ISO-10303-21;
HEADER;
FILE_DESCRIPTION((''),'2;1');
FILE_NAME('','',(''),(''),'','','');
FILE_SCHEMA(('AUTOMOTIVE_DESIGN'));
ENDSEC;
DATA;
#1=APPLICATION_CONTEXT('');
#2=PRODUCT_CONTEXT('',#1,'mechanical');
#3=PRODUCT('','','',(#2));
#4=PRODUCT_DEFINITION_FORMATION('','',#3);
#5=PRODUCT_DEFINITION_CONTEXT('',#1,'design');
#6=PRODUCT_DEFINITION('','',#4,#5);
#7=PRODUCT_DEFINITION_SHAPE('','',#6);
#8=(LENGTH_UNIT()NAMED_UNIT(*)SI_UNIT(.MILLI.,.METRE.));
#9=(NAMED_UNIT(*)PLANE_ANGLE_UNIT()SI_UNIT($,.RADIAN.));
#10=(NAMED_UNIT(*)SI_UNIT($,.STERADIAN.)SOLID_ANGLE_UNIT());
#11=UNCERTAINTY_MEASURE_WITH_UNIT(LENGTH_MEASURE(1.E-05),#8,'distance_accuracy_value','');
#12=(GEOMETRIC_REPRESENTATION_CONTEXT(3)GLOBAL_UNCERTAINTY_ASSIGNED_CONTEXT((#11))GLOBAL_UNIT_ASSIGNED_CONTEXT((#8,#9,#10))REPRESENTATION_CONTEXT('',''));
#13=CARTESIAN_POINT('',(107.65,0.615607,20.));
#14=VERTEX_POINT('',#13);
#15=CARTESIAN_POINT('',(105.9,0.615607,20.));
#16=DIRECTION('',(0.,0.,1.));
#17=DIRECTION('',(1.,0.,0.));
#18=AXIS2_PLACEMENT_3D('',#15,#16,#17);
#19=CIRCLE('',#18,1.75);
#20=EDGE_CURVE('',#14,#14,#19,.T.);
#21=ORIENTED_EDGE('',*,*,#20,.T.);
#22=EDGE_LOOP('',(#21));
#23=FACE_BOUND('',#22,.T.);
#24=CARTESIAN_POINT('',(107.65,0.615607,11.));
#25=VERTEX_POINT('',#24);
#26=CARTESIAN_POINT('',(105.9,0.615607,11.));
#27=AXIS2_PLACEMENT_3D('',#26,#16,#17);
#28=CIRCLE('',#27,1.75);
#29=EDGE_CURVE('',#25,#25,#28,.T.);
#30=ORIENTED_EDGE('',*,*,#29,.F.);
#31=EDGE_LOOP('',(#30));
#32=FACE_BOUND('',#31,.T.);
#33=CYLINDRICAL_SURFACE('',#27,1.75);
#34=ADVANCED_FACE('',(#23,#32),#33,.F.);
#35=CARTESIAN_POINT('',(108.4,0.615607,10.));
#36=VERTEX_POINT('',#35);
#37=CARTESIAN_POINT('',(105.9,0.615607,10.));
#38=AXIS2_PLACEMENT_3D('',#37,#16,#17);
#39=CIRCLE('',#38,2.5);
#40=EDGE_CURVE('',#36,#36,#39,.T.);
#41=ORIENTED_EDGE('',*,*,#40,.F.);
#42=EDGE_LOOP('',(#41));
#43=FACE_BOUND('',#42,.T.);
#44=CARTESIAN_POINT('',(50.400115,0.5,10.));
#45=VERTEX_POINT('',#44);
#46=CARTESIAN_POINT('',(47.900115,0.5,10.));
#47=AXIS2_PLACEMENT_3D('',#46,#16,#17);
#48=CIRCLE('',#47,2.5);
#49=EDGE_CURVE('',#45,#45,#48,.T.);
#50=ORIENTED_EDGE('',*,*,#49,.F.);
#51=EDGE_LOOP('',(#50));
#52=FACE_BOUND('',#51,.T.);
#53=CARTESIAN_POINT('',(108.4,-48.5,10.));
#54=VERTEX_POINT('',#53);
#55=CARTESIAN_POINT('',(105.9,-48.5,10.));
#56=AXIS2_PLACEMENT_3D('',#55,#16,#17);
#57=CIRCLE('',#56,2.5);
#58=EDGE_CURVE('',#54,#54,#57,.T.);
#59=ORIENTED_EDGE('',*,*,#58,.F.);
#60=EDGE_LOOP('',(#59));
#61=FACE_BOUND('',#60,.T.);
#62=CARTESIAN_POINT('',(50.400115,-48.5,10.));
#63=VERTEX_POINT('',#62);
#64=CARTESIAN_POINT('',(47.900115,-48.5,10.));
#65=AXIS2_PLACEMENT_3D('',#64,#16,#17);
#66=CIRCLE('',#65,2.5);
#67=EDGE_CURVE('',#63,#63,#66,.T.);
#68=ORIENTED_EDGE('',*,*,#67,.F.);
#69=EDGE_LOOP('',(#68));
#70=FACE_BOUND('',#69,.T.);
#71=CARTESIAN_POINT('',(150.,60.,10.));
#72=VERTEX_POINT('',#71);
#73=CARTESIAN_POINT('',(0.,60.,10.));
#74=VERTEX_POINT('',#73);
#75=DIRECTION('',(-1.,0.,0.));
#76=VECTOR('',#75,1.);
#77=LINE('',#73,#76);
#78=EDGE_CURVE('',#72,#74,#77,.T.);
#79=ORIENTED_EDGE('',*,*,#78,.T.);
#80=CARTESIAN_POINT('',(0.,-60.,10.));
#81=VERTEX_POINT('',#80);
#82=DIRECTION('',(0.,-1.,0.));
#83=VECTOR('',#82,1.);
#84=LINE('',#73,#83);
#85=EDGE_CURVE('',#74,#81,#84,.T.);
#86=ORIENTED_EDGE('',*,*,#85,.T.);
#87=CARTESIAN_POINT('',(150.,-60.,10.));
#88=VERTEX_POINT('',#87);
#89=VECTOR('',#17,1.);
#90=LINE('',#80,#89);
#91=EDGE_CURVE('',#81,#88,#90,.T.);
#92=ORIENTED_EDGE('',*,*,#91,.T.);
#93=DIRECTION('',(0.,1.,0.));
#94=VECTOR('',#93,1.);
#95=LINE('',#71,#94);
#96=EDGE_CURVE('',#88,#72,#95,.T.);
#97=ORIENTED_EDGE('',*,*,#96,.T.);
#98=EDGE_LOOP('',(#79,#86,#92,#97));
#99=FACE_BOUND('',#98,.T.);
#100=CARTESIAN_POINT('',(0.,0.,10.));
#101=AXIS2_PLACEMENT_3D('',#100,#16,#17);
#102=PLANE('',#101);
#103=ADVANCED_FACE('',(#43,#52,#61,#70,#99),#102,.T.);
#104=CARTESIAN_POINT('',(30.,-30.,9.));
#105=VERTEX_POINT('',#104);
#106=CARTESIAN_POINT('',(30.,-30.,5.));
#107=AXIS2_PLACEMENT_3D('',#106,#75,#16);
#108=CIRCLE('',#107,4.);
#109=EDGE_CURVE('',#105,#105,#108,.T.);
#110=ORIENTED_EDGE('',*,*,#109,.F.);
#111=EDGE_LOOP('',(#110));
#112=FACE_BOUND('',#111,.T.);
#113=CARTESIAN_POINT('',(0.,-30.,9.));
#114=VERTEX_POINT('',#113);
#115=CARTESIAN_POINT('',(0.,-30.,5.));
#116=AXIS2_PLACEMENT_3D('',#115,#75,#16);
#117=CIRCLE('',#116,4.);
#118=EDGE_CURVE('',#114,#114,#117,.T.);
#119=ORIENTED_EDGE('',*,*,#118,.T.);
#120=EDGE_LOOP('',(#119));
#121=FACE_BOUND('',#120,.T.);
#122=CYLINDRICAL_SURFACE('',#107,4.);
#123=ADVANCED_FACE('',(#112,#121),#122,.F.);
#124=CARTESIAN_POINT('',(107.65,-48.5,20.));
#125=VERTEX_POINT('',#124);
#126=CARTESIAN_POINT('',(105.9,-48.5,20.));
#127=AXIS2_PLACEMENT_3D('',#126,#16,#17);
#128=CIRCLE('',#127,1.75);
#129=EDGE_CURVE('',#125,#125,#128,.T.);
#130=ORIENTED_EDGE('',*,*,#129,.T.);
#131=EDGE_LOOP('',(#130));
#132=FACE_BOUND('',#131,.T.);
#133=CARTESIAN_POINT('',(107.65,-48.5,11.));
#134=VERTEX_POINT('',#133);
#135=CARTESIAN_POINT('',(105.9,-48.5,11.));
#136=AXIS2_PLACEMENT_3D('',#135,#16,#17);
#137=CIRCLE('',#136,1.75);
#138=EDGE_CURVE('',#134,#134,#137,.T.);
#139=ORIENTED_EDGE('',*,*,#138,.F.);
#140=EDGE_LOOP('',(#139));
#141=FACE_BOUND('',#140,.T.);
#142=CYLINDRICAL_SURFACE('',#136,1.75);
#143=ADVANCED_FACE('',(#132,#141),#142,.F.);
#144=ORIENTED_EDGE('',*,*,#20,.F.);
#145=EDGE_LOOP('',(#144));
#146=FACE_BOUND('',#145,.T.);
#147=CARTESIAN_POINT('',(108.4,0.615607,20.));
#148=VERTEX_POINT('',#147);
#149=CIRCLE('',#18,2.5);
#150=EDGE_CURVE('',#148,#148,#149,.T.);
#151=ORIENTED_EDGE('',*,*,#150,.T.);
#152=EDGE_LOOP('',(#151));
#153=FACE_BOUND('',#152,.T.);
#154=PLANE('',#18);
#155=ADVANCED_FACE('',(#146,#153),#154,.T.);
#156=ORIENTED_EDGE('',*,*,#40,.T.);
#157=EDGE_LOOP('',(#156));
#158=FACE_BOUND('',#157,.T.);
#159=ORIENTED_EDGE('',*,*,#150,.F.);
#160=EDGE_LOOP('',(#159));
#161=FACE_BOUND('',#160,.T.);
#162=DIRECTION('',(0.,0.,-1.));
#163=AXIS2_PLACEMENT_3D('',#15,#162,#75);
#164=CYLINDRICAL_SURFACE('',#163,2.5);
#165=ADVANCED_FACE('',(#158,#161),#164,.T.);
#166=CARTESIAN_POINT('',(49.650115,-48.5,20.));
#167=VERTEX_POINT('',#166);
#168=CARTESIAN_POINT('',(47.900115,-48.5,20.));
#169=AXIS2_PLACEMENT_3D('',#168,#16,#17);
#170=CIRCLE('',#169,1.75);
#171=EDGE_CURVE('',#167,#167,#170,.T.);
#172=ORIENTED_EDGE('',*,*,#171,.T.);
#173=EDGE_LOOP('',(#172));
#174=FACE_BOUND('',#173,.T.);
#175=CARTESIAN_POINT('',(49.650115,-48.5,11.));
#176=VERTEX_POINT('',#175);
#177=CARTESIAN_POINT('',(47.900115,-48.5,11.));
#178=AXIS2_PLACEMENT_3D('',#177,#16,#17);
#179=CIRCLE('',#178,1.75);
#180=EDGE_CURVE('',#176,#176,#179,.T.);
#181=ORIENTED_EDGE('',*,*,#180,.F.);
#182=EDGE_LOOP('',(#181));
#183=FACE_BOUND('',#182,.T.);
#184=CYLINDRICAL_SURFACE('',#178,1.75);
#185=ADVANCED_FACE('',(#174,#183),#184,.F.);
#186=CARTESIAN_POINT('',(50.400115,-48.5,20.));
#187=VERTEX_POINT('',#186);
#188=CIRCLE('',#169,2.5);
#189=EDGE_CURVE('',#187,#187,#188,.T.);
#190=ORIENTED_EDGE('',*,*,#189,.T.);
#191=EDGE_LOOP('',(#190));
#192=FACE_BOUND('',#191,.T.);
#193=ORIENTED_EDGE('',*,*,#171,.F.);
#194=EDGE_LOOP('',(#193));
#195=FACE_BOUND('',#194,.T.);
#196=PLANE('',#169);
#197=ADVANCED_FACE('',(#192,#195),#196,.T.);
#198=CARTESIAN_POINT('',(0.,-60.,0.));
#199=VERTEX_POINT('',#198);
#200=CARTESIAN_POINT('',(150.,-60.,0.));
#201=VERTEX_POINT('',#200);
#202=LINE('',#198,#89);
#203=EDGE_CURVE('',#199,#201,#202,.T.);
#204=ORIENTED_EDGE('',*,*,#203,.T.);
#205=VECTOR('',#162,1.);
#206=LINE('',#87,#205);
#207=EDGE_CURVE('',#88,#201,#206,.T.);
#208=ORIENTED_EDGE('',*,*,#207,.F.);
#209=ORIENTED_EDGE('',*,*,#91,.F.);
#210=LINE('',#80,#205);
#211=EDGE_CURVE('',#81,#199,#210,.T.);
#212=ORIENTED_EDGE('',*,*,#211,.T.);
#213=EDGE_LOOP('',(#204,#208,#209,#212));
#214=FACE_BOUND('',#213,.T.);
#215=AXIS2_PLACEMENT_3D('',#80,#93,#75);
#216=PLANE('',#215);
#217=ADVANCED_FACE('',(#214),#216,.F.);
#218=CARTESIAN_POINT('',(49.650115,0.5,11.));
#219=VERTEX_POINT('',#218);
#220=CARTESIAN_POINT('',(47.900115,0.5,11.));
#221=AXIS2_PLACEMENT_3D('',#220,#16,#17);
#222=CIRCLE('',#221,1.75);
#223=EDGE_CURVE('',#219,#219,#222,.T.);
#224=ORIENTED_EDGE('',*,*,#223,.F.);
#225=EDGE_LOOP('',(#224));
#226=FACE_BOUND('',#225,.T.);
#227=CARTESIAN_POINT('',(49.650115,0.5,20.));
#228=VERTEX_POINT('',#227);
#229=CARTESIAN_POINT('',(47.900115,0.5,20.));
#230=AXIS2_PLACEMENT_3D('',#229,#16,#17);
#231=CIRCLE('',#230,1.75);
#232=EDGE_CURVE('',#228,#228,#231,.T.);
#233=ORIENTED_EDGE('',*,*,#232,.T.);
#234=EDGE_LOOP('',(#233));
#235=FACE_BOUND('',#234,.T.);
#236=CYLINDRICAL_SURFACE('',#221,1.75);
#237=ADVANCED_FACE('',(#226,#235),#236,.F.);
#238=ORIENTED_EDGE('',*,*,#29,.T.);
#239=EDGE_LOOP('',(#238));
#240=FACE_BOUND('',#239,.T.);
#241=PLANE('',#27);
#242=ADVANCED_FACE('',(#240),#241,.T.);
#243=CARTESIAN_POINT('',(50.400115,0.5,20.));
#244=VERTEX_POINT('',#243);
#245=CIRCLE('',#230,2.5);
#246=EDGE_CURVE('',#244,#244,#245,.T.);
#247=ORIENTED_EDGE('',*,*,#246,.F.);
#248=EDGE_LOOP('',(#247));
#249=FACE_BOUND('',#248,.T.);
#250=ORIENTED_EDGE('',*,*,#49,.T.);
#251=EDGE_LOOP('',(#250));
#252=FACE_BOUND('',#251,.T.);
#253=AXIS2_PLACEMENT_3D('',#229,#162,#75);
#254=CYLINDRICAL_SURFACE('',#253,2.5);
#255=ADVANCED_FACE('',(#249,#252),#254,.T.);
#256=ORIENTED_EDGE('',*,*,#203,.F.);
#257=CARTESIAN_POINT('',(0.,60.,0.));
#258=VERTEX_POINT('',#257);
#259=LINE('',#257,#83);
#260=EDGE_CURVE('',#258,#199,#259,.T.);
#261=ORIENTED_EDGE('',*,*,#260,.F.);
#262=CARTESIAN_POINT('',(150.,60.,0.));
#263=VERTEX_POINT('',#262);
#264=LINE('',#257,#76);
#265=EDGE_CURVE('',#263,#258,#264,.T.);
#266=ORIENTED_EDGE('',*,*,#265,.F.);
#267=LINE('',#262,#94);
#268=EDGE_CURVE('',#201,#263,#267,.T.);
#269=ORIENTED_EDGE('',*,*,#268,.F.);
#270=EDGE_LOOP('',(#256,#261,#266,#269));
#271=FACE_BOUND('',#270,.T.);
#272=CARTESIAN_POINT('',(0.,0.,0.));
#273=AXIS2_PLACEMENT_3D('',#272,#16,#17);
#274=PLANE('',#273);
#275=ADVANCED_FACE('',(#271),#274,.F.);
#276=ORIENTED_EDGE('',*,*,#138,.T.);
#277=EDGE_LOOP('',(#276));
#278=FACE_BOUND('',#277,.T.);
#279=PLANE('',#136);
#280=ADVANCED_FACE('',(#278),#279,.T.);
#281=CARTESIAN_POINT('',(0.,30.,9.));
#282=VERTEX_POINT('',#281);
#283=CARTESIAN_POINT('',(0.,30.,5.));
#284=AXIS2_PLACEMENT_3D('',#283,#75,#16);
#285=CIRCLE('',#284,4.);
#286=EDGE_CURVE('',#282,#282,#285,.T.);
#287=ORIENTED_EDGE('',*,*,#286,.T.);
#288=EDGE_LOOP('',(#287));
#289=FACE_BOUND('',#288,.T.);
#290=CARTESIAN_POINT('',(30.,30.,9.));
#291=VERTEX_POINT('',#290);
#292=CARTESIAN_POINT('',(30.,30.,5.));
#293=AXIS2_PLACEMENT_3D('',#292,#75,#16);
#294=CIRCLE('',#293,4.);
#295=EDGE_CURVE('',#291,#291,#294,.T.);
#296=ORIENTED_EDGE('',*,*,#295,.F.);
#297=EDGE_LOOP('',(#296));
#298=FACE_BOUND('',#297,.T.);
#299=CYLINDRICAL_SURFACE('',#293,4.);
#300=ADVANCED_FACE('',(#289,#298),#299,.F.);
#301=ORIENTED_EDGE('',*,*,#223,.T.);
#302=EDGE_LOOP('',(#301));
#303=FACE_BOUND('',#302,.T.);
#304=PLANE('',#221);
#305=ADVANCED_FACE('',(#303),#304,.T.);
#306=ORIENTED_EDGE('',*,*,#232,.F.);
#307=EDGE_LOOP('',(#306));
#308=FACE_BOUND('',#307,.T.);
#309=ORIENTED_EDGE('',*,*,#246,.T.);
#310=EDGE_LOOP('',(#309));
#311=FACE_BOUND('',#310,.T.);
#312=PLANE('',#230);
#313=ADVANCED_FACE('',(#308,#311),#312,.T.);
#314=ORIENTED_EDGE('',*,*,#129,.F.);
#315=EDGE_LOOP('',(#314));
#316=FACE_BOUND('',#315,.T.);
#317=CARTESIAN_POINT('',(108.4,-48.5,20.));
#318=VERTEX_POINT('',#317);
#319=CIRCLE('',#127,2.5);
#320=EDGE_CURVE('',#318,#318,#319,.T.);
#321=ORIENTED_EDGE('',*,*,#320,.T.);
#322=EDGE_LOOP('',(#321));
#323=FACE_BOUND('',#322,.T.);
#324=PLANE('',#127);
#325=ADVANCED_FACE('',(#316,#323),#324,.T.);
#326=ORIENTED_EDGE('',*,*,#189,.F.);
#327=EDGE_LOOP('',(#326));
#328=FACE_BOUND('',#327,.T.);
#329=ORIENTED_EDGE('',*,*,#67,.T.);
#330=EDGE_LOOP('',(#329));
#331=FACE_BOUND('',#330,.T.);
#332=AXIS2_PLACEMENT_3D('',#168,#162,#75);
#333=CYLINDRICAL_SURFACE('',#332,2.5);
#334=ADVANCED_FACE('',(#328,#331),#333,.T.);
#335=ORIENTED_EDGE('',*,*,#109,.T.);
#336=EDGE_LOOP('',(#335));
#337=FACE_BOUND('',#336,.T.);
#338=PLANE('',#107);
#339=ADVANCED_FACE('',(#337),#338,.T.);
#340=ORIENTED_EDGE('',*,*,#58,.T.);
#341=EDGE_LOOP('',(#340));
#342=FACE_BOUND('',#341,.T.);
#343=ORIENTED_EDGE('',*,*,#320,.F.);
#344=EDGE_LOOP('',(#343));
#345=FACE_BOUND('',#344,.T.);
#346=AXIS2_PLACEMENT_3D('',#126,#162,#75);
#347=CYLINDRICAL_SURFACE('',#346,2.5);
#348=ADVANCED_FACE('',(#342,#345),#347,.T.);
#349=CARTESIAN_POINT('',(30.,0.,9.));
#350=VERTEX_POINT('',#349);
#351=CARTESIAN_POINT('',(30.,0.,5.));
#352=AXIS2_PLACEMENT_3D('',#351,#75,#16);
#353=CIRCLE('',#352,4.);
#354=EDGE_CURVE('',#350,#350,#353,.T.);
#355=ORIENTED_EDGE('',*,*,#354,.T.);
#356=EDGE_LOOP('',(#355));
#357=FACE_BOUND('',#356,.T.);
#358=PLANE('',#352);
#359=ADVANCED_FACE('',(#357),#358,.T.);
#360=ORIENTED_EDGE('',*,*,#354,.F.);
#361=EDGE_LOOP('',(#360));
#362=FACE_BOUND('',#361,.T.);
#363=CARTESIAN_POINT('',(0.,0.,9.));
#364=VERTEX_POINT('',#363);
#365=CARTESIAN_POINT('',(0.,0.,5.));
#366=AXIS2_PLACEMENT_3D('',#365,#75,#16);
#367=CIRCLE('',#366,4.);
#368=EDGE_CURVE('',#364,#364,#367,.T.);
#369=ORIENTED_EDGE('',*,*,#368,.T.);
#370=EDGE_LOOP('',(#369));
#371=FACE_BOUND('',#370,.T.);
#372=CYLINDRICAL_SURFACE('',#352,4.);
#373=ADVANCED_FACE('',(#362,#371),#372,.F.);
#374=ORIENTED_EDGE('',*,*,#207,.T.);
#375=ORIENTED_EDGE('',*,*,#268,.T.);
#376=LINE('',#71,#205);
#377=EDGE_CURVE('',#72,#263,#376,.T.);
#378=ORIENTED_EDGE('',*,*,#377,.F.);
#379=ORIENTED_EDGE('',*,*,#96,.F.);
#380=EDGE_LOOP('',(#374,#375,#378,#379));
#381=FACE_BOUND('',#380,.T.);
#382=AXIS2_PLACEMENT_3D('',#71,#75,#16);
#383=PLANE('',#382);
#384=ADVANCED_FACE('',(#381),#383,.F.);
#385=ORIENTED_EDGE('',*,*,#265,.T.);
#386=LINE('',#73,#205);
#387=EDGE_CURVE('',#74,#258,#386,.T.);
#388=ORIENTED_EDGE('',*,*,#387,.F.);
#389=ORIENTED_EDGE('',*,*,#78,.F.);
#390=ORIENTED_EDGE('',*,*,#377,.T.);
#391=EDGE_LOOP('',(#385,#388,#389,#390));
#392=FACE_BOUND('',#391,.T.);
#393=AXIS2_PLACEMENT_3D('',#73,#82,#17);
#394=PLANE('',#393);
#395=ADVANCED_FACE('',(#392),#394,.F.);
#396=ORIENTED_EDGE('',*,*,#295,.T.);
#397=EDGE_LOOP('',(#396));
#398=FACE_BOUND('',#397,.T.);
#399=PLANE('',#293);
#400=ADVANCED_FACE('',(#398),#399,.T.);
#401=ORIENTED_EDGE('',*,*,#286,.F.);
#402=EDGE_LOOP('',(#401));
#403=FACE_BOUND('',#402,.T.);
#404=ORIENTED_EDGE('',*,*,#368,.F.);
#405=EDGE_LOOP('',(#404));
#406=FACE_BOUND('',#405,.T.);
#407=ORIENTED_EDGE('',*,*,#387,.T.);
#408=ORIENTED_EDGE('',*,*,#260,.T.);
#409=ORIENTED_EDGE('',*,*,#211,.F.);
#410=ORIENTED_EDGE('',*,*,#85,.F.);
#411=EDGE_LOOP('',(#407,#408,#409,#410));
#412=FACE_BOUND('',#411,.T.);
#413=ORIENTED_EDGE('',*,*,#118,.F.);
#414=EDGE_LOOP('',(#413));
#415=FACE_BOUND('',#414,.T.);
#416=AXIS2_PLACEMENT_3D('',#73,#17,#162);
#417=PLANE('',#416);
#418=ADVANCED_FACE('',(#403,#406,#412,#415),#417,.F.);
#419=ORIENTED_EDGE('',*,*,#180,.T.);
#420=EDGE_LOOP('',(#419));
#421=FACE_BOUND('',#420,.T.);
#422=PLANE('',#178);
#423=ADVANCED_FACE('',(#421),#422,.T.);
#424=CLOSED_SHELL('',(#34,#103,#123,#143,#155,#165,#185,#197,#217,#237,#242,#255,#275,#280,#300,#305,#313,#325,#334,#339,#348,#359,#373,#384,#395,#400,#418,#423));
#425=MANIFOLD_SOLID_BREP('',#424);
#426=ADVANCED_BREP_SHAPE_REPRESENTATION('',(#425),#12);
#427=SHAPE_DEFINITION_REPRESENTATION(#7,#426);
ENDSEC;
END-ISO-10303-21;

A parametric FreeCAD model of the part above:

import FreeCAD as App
import Part
import Sketcher
from FreeCAD import Vector

doc = App.newDocument("Part")
body = doc.addObject("PartDesign::Body", "Body")

sketch1 = body.newObject("Sketcher::SketchObject", "Sketch")
sketch1.AttachmentSupport = (doc.getObject("XY_Plane"), [""])
sketch1.MapMode = "FlatFace"
sketch1.addGeometry(Part.LineSegment(Vector(0, 60, 0), Vector(0, -60, 0)), False)
sketch1.addGeometry(Part.LineSegment(Vector(0, -60, 0), Vector(150, -60, 0)), False)
sketch1.addGeometry(Part.LineSegment(Vector(150, -60, 0), Vector(150, 60, 0)), False)
sketch1.addGeometry(Part.LineSegment(Vector(150, 60, 0), Vector(0, 60, 0)), False)
sketch1.addConstraint(Sketcher.Constraint("Coincident", 0, 2, 1, 1))
sketch1.addConstraint(Sketcher.Constraint("Coincident", 1, 2, 2, 1))
sketch1.addConstraint(Sketcher.Constraint("Coincident", 2, 2, 3, 1))
sketch1.addConstraint(Sketcher.Constraint("Coincident", 3, 2, 0, 1))
sketch1.addConstraint(Sketcher.Constraint("Vertical", 0))
sketch1.addConstraint(Sketcher.Constraint("Horizontal", 1))
sketch1.addConstraint(Sketcher.Constraint("Vertical", 2))
sketch1.addConstraint(Sketcher.Constraint("Horizontal", 3))
sketch1.addConstraint(Sketcher.Constraint("Symmetric", 0, 2, 3, 2, -1, 1))
sketch1.addConstraint(Sketcher.Constraint("DistanceX", 1, 1, 1, 2, 150.0))
sketch1.addConstraint(Sketcher.Constraint("DistanceY", 0, 2, 0, 1, 120.0))
pad1 = body.newObject("PartDesign::Pad", "Pad")
pad1.Profile = sketch1
pad1.Length = 10

sketch2 = body.newObject("Sketcher::SketchObject", "Sketch001")
sketch2.AttachmentSupport = (doc.getObject("YZ_Plane"), [""])
sketch2.MapMode = "FlatFace"
sketch2.addGeometry(Part.Circle(Vector(0, 5, 0), Vector(0, 0, 1), 4), False)
sketch2.addGeometry(Part.Circle(Vector(30, 5, 0), Vector(0, 0, 1), 4), False)
sketch2.addGeometry(Part.Circle(Vector(-30, 5, 0), Vector(0, 0, 1), 4), False)
sketch2.addConstraint(Sketcher.Constraint("Equal", 0, 1))
sketch2.addConstraint(Sketcher.Constraint("Equal", 1, 2))
sketch2.addConstraint(Sketcher.Constraint("Symmetric", 1, 3, 2, 3, -2))
sketch2.addConstraint(Sketcher.Constraint("PointOnObject", 0, 3, -2))
sketch2.addConstraint(Sketcher.Constraint("Horizontal", 0, 3, 1, 3))
sketch2.addConstraint(Sketcher.Constraint("Diameter", 0, 8.0))
sketch2.addConstraint(Sketcher.Constraint("DistanceY", -1, 1, 0, 3, 5.0))
sketch2.addConstraint(Sketcher.Constraint("DistanceX", -1, 1, 1, 3, 30.0))
pocket1 = body.newObject("PartDesign::Pocket", "Pocket")
pocket1.Profile = sketch2
pocket1.Length = 30
pocket1.Reversed = True

sketch3 = body.newObject("Sketcher::SketchObject", "Sketch002")
sketch3.AttachmentSupport = (doc.getObject("XY_Plane"), [""])
sketch3.MapMode = "FlatFace"
sketch3.AttachmentOffset = App.Placement(Vector(0, 0, 10), App.Rotation())
sketch3.addGeometry(Part.Circle(Vector(47.900115, 0.5, 0), Vector(0, 0, 1), 2.5), False)
sketch3.addGeometry(Part.Circle(Vector(105.9, 0.615607, 0), Vector(0, 0, 1), 2.5), False)
sketch3.addGeometry(Part.Circle(Vector(105.9, -48.5, 0), Vector(0, 0, 1), 2.5), False)
sketch3.addGeometry(Part.Circle(Vector(47.900115, -48.5, 0), Vector(0, 0, 1), 2.5), False)
sketch3.addConstraint(Sketcher.Constraint("Equal", 0, 1))
sketch3.addConstraint(Sketcher.Constraint("Equal", 1, 2))
sketch3.addConstraint(Sketcher.Constraint("Equal", 2, 3))
sketch3.addConstraint(Sketcher.Constraint("Horizontal", 2, 3, 3, 3))
sketch3.addConstraint(Sketcher.Constraint("Vertical", 1, 3, 2, 3))
sketch3.addConstraint(Sketcher.Constraint("Vertical", 0, 3, 3, 3))
sketch3.addConstraint(Sketcher.Constraint("Diameter", 0, 5.0))
sketch3.addConstraint(Sketcher.Constraint("DistanceY", 2, 3, 0, 3, 49.0))
sketch3.addConstraint(Sketcher.Constraint("DistanceY", -1, 1, 0, 3, 0.5))
sketch3.addConstraint(Sketcher.Constraint("DistanceX", -1, 1, 1, 3, 105.9))
sketch3.addConstraint(Sketcher.Constraint("DistanceX", -1, 1, 0, 3, 47.900115))
sketch3.addConstraint(Sketcher.Constraint("DistanceY", -1, 1, 1, 3, 0.615607))
pad2 = body.newObject("PartDesign::Pad", "Pad001")
pad2.Profile = sketch3
pad2.Length = 10

sketch4 = body.newObject("Sketcher::SketchObject", "Sketch003")
sketch4.AttachmentSupport = (doc.getObject("XY_Plane"), [""])
sketch4.MapMode = "FlatFace"
sketch4.AttachmentOffset = App.Placement(Vector(0, 0, 20), App.Rotation())
sketch4.addGeometry(Part.Circle(Vector(47.900115, 0.5, 0), Vector(0, 0, 1), 1.75), False)
sketch4.addGeometry(Part.Circle(Vector(47.900115, -48.5, 0), Vector(0, 0, 1), 1.75), False)
sketch4.addGeometry(Part.Circle(Vector(105.9, -48.5, 0), Vector(0, 0, 1), 1.75), False)
sketch4.addGeometry(Part.Circle(Vector(105.9, 0.615607, 0), Vector(0, 0, 1), 1.75), False)
sketch4.addConstraint(Sketcher.Constraint("Equal", 0, 1))
sketch4.addConstraint(Sketcher.Constraint("Equal", 1, 2))
sketch4.addConstraint(Sketcher.Constraint("Equal", 2, 3))
sketch4.addConstraint(Sketcher.Constraint("Horizontal", 1, 3, 2, 3))
sketch4.addConstraint(Sketcher.Constraint("Vertical", 0, 3, 1, 3))
sketch4.addConstraint(Sketcher.Constraint("Vertical", 2, 3, 3, 3))
sketch4.addConstraint(Sketcher.Constraint("Diameter", 0, 3.5))
sketch4.addConstraint(Sketcher.Constraint("DistanceY", 1, 3, 0, 3, 49.0))
sketch4.addConstraint(Sketcher.Constraint("DistanceY", -1, 1, 0, 3, 0.5))
sketch4.addConstraint(Sketcher.Constraint("DistanceX", -1, 1, 2, 3, 105.9))
sketch4.addConstraint(Sketcher.Constraint("DistanceX", -1, 1, 0, 3, 47.900115))
sketch4.addConstraint(Sketcher.Constraint("DistanceY", -1, 1, 3, 3, 0.615607))
pocket2 = body.newObject("PartDesign::Pocket", "Pocket001")
pocket2.Profile = sketch4
pocket2.Length = 9

doc.recompute()
